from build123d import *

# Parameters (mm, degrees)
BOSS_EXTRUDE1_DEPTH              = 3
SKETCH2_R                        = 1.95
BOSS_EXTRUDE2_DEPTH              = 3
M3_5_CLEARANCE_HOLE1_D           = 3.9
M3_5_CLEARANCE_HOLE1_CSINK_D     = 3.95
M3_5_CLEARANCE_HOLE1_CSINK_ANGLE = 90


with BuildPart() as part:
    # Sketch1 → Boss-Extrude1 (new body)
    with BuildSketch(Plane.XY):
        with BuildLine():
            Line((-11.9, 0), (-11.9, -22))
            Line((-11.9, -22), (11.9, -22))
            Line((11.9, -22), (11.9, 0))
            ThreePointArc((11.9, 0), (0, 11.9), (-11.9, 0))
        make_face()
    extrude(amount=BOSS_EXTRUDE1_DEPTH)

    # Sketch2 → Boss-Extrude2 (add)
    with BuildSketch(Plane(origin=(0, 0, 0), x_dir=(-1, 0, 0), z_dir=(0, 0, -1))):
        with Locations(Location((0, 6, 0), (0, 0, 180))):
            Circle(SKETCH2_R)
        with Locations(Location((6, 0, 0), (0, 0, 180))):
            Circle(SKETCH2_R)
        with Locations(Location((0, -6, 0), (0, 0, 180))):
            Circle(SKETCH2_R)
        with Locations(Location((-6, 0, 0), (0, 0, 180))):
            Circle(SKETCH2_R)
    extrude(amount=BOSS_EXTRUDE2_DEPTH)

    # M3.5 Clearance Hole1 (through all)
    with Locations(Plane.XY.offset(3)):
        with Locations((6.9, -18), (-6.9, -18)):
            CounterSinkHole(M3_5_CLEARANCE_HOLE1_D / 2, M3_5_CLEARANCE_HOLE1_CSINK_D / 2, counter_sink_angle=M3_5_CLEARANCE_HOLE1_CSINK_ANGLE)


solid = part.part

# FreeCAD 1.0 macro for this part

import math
import FreeCAD as App
import Part
import Sketcher
from FreeCAD import Vector
Q = App.Units.Quantity

doc = App.newDocument("Part")
body = doc.addObject("PartDesign::Body", "Body")

sketch1 = doc.addObject("Sketcher::SketchObject", "Sketch")
body.addObject(sketch1)
sketch1.AttachmentSupport = (doc.XY_Plane, [""])
sketch1.MapMode = "FlatFace"
sketch1.addGeometry([
    Part.LineSegment(Vector(-12, 0, 0), Vector(-12, -22, 0)),
    Part.LineSegment(Vector(-12, -22, 0), Vector(12, -22, 0)),
    Part.LineSegment(Vector(12, -22, 0), Vector(12, 0, 0)),
    Part.ArcOfCircle(Part.Circle(Vector(0, 0, 0), Vector(0, 0, 1), 12), math.radians(0), math.radians(180)),
], False)
sketch1.addConstraint([
    Sketcher.Constraint("Coincident", 0, 2, 1, 1),
    Sketcher.Constraint("Coincident", 1, 2, 2, 1),
    Sketcher.Constraint("Tangent", 2, 2, 3, 1),
    Sketcher.Constraint("Tangent", 3, 2, 0, 1),
    Sketcher.Constraint("Vertical", 0),
    Sketcher.Constraint("Horizontal", 1),
    Sketcher.Constraint("Vertical", 2),
    Sketcher.Constraint("Coincident", 3, 3, -1, 1),
    Sketcher.Constraint("Radius", 3, Q("11.9 mm")),
    Sketcher.Constraint("DistanceY", 0, 2, 0, 1, Q("22 mm")),
])
pad1 = doc.addObject("PartDesign::Pad", "Pad")
body.addObject(pad1)
pad1.Profile = sketch1
pad1.Length = 3

sketch2 = doc.addObject("Sketcher::SketchObject", "Sketch001")
body.addObject(sketch2)
sketch2.AttachmentSupport = (doc.XY_Plane, [""])
sketch2.MapMode = "FlatFace"
sketch2.addGeometry([
    Part.Circle(Vector(0, 6, 0), Vector(0, 0, 1), 1.9),
    Part.Circle(Vector(-6, 0, 0), Vector(0, 0, 1), 1.9),
    Part.Circle(Vector(0, -6, 0), Vector(0, 0, 1), 1.9),
    Part.Circle(Vector(6, 0, 0), Vector(0, 0, 1), 1.9),
], False)
sketch2.addConstraint([
    Sketcher.Constraint("Equal", 0, 1),
    Sketcher.Constraint("Equal", 1, 2),
    Sketcher.Constraint("Equal", 2, 3),
    Sketcher.Constraint("Symmetric", 0, 3, 2, 3, -1, 1),
    Sketcher.Constraint("Symmetric", 1, 3, 3, 3, -1, 1),
    Sketcher.Constraint("PointOnObject", 0, 3, -2),
    Sketcher.Constraint("PointOnObject", 1, 3, -1),
    Sketcher.Constraint("Diameter", 0, Q("3.9 mm")),
    Sketcher.Constraint("DistanceY", -1, 1, 0, 3, Q("6 mm")),
    Sketcher.Constraint("DistanceX", 1, 3, -1, 1, Q("6 mm")),
])
pad2 = doc.addObject("PartDesign::Pad", "Pad001")
body.addObject(pad2)
pad2.Profile = sketch2
pad2.Length = 3
pad2.Reversed = True

sketch3 = doc.addObject("Sketcher::SketchObject", "Sketch002")
body.addObject(sketch3)
sketch3.AttachmentSupport = (doc.XY_Plane, [""])
sketch3.MapMode = "FlatFace"
sketch3.AttachmentOffset = App.Placement(Vector(0, 0, 3), App.Rotation())
sketch3.addGeometry([
    Part.Circle(Vector(6.9, -18, 0), Vector(0, 0, 1), 1.9),
    Part.Circle(Vector(-6.9, -18, 0), Vector(0, 0, 1), 1.9),
], False)
sketch3.addConstraint([
    Sketcher.Constraint("Equal", 0, 1),
    Sketcher.Constraint("Symmetric", 0, 3, 1, 3, -2),
    Sketcher.Constraint("Diameter", 0, Q("3.9 mm")),
    Sketcher.Constraint("DistanceY", 0, 3, -1, 1, Q("18 mm")),
    Sketcher.Constraint("DistanceX", -1, 1, 0, 3, Q("6.9 mm")),
])
doc.recompute()
hole = doc.addObject("PartDesign::Hole", "Hole")
body.addObject(hole)
hole.Profile = sketch3
hole.ThreadType = "None"
hole.Diameter = 3.9
hole.DepthType = "ThroughAll"
hole.HoleCutType = "Countersink"
hole.HoleCutDiameter = 3.95
hole.HoleCutCountersinkAngle = 90

doc.recompute()
